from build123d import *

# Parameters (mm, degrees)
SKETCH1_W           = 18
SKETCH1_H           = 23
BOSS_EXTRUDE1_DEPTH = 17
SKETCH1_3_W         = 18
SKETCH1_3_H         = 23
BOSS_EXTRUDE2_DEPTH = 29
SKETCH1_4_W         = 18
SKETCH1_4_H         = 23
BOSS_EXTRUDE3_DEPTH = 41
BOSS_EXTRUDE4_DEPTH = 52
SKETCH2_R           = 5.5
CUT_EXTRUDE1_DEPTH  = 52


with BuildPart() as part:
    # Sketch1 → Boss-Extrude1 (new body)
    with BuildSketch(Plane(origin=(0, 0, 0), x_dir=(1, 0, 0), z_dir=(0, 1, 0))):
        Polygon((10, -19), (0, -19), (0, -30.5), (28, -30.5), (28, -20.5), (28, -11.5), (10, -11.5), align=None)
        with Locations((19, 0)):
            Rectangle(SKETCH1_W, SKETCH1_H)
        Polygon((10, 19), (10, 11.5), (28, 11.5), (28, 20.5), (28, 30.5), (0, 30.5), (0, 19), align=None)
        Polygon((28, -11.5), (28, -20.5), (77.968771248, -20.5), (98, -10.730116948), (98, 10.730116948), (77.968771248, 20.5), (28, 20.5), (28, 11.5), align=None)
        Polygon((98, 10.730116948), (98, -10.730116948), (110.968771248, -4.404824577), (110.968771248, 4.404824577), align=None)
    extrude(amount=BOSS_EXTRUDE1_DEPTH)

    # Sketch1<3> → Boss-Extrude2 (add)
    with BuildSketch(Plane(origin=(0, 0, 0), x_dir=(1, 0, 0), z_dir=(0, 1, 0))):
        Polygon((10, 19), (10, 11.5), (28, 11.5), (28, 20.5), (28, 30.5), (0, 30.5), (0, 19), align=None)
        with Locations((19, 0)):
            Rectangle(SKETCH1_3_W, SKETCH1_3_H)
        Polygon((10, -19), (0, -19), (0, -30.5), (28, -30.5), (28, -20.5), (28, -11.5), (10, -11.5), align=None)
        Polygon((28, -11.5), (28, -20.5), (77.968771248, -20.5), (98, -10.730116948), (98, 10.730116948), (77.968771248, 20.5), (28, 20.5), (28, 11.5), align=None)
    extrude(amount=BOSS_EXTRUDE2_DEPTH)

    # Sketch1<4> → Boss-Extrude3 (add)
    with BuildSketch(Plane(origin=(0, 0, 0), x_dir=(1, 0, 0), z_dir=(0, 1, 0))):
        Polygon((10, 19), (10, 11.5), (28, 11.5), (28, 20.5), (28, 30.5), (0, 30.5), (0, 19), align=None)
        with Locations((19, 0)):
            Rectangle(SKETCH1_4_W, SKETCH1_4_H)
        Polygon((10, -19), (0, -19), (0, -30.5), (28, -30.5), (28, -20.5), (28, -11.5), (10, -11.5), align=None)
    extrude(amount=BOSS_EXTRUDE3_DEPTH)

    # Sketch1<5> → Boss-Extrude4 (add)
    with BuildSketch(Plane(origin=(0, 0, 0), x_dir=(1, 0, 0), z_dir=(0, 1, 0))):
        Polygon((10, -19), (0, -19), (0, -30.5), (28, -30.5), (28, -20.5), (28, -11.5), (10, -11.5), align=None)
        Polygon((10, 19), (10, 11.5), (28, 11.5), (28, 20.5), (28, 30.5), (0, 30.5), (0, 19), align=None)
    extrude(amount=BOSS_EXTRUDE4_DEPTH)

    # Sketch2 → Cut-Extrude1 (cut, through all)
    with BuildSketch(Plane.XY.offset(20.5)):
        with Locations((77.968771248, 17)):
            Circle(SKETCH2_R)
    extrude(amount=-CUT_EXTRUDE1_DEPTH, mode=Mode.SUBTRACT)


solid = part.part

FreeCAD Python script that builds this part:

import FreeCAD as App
import Part
import Sketcher
from FreeCAD import Vector
Q = App.Units.Quantity

doc = App.newDocument("Part")
params = doc.addObject("Spreadsheet::Sheet", "Params")
for row, (alias, value) in enumerate([
    ("sketch1_width", "10 mm"),
    ("sketch1_width2", "28 mm"),
    ("sketch1_height", "38 mm"),
    ("sketch1_height2", "11.5 mm"),
    ("pad1_length", "17 mm"),
    ("sketch2_width", "10 mm"),
    ("sketch2_width2", "28 mm"),
    ("sketch2_height", "38 mm"),
    ("sketch2_height2", "11.5 mm"),
    ("pad2_length", "29 mm"),
    ("sketch3_width", "10 mm"),
    ("sketch3_width2", "28 mm"),
    ("sketch3_height", "38 mm"),
    ("sketch3_height2", "61 mm"),
    ("pad3_length", "41 mm"),
    ("sketch4_width", "10 mm"),
    ("sketch4_width2", "28 mm"),
    ("sketch4_height", "19 mm"),
    ("sketch4_height2", "11.5 mm"),
    ("pad4_length", "52 mm"),
    ("sketch5_diameter", "11 mm"),
], start=1):
    params.set(f"A{row}", alias)
    params.set(f"B{row}", "=" + value)
    params.setAlias(f"B{row}", alias)

body = doc.addObject("PartDesign::Body", "Body")

# Sketch on XZ plane
sketch1 = body.newObject("Sketcher::SketchObject", "Sketch")
sketch1.AttachmentSupport = (doc.getObject("XZ_Plane"), [""])
sketch1.MapMode = "FlatFace"
sketch1.addGeometry(Part.LineSegment(Vector(10, 19, 0), Vector(0, 19, 0)), False)
sketch1.addGeometry(Part.LineSegment(Vector(0, 19, 0), Vector(0, 30, 0)), False)
sketch1.addGeometry(Part.LineSegment(Vector(0, 30, 0), Vector(28, 30, 0)), False)
sketch1.addGeometry(Part.LineSegment(Vector(28, 30, 0), Vector(28, 20, 0)), False)
sketch1.addGeometry(Part.LineSegment(Vector(28, 20, 0), Vector(78, 20, 0)), False)
sketch1.addGeometry(Part.LineSegment(Vector(78, 20, 0), Vector(98, 11, 0)), False)
sketch1.addGeometry(Part.LineSegment(Vector(98, 11, 0), Vector(111, 4, 0)), False)
sketch1.addGeometry(Part.LineSegment(Vector(111, 4, 0), Vector(111, -4, 0)), False)
sketch1.addGeometry(Part.LineSegment(Vector(111, -4, 0), Vector(98, -11, 0)), False)
sketch1.addGeometry(Part.LineSegment(Vector(98, -11, 0), Vector(78, -20, 0)), False)
sketch1.addGeometry(Part.LineSegment(Vector(78, -20, 0), Vector(28, -20, 0)), False)
sketch1.addGeometry(Part.LineSegment(Vector(28, -20, 0), Vector(28, -30, 0)), False)
sketch1.addGeometry(Part.LineSegment(Vector(28, -30, 0), Vector(0, -30, 0)), False)
sketch1.addGeometry(Part.LineSegment(Vector(0, -30, 0), Vector(0, -19, 0)), False)
sketch1.addGeometry(Part.LineSegment(Vector(0, -19, 0), Vector(10, -19, 0)), False)
sketch1.addGeometry(Part.LineSegment(Vector(10, -19, 0), Vector(10, 19, 0)), False)
sketch1.addConstraint(Sketcher.Constraint("Coincident", 0, 2, 1, 1))
sketch1.addConstraint(Sketcher.Constraint("Coincident", 1, 2, 2, 1))
sketch1.addConstraint(Sketcher.Constraint("Coincident", 2, 2, 3, 1))
sketch1.addConstraint(Sketcher.Constraint("Coincident", 3, 2, 4, 1))
sketch1.addConstraint(Sketcher.Constraint("Coincident", 4, 2, 5, 1))
sketch1.addConstraint(Sketcher.Constraint("Coincident", 5, 2, 6, 1))
sketch1.addConstraint(Sketcher.Constraint("Coincident", 6, 2, 7, 1))
sketch1.addConstraint(Sketcher.Constraint("Coincident", 7, 2, 8, 1))
sketch1.addConstraint(Sketcher.Constraint("Coincident", 8, 2, 9, 1))
sketch1.addConstraint(Sketcher.Constraint("Coincident", 9, 2, 10, 1))
sketch1.addConstraint(Sketcher.Constraint("Coincident", 10, 2, 11, 1))
sketch1.addConstraint(Sketcher.Constraint("Coincident", 11, 2, 12, 1))
sketch1.addConstraint(Sketcher.Constraint("Coincident", 12, 2, 13, 1))
sketch1.addConstraint(Sketcher.Constraint("Coincident", 13, 2, 14, 1))
sketch1.addConstraint(Sketcher.Constraint("Coincident", 14, 2, 15, 1))
sketch1.addConstraint(Sketcher.Constraint("Coincident", 15, 2, 0, 1))
sketch1.addConstraint(Sketcher.Constraint("Horizontal", 0))
sketch1.addConstraint(Sketcher.Constraint("Vertical", 1))
sketch1.addConstraint(Sketcher.Constraint("Horizontal", 2))
sketch1.addConstraint(Sketcher.Constraint("Vertical", 3))
sketch1.addConstraint(Sketcher.Constraint("Horizontal", 4))
sketch1.addConstraint(Sketcher.Constraint("Vertical", 7))
sketch1.addConstraint(Sketcher.Constraint("Horizontal", 10))
sketch1.addConstraint(Sketcher.Constraint("Vertical", 11))
sketch1.addConstraint(Sketcher.Constraint("Horizontal", 12))
sketch1.addConstraint(Sketcher.Constraint("Vertical", 13))
sketch1.addConstraint(Sketcher.Constraint("Horizontal", 14))
sketch1.addConstraint(Sketcher.Constraint("Vertical", 15))
sketch1.addConstraint(Sketcher.Constraint("Symmetric", 1, 2, 12, 2, -1, 1))
sketch1.addConstraint(Sketcher.Constraint("Symmetric", 5, 2, 8, 2, -1))
sketch1.addConstraint(Sketcher.Constraint("Symmetric", 4, 2, 9, 2, -1))
sketch1.addConstraint(Sketcher.Constraint("Symmetric", 0, 2, 13, 2, -1))
sketch1.addConstraint(Sketcher.Constraint("Parallel", 5, 6))
sketch1.addConstraint(Sketcher.Constraint("Parallel", 8, 9))
sketch1.addConstraint(Sketcher.Constraint("Vertical", 3, 2, 10, 2))
sketch1.addConstraint(Sketcher.Constraint("Equal", 14, 3))
sketch1.addConstraint(Sketcher.Constraint("DistanceX", 0, 2, 0, 1, Q("10 mm")))
sketch1.addConstraint(Sketcher.Constraint("DistanceX", 2, 1, 2, 2, Q("28 mm")))
sketch1.addConstraint(Sketcher.Constraint("DistanceY", 15, 1, 15, 2, Q("38 mm")))
sketch1.addConstraint(Sketcher.Constraint("Angle", 5, Q("-26 deg")))
sketch1.addConstraint(Sketcher.Constraint("DistanceY", 1, 1, 1, 2, Q("11.5 mm")))
sketch1.addConstraint(Sketcher.Constraint("DistanceX", -1, 1, 5, 2, Q("98 mm")))
sketch1.addConstraint(Sketcher.Constraint("DistanceX", 4, 2, 6, 2, Q("33 mm")))
sketch1.addConstraint(Sketcher.Constraint("DistanceX", 4, 1, 4, 2, Q("49.968771 mm")))
sketch1.setExpression("Constraints[36]", "Params.sketch1_width")
sketch1.setExpression("Constraints[37]", "Params.sketch1_width2")
sketch1.setExpression("Constraints[38]", "Params.sketch1_height")
sketch1.setExpression("Constraints[40]", "Params.sketch1_height2")
pad1 = body.newObject("PartDesign::Pad", "Pad")
pad1.Profile = sketch1
pad1.setExpression("Length", "Params.pad1_length")
pad1.Reversed = True

# Sketch on XZ plane
sketch2 = body.newObject("Sketcher::SketchObject", "Sketch001")
sketch2.AttachmentSupport = (doc.getObject("XZ_Plane"), [""])
sketch2.MapMode = "FlatFace"
sketch2.addGeometry(Part.LineSegment(Vector(10, -19, 0), Vector(10, 19, 0)), False)
sketch2.addGeometry(Part.LineSegment(Vector(10, 19, 0), Vector(0, 19, 0)), False)
sketch2.addGeometry(Part.LineSegment(Vector(0, 19, 0), Vector(0, 30, 0)), False)
sketch2.addGeometry(Part.LineSegment(Vector(0, 30, 0), Vector(28, 30, 0)), False)
sketch2.addGeometry(Part.LineSegment(Vector(28, 30, 0), Vector(28, 20, 0)), False)
sketch2.addGeometry(Part.LineSegment(Vector(28, 20, 0), Vector(78, 20, 0)), False)
sketch2.addGeometry(Part.LineSegment(Vector(78, 20, 0), Vector(98, 11, 0)), False)
sketch2.addGeometry(Part.LineSegment(Vector(98, 11, 0), Vector(98, -11, 0)), False)
sketch2.addGeometry(Part.LineSegment(Vector(98, -11, 0), Vector(78, -20, 0)), False)
sketch2.addGeometry(Part.LineSegment(Vector(78, -20, 0), Vector(28, -20, 0)), False)
sketch2.addGeometry(Part.LineSegment(Vector(28, -20, 0), Vector(28, -30, 0)), False)
sketch2.addGeometry(Part.LineSegment(Vector(28, -30, 0), Vector(0, -30, 0)), False)
sketch2.addGeometry(Part.LineSegment(Vector(0, -30, 0), Vector(0, -19, 0)), False)
sketch2.addGeometry(Part.LineSegment(Vector(0, -19, 0), Vector(10, -19, 0)), False)
sketch2.addConstraint(Sketcher.Constraint("Coincident", 0, 2, 1, 1))
sketch2.addConstraint(Sketcher.Constraint("Coincident", 1, 2, 2, 1))
sketch2.addConstraint(Sketcher.Constraint("Coincident", 2, 2, 3, 1))
sketch2.addConstraint(Sketcher.Constraint("Coincident", 3, 2, 4, 1))
sketch2.addConstraint(Sketcher.Constraint("Coincident", 4, 2, 5, 1))
sketch2.addConstraint(Sketcher.Constraint("Coincident", 5, 2, 6, 1))
sketch2.addConstraint(Sketcher.Constraint("Coincident", 6, 2, 7, 1))
sketch2.addConstraint(Sketcher.Constraint("Coincident", 7, 2, 8, 1))
sketch2.addConstraint(Sketcher.Constraint("Coincident", 8, 2, 9, 1))
sketch2.addConstraint(Sketcher.Constraint("Coincident", 9, 2, 10, 1))
sketch2.addConstraint(Sketcher.Constraint("Coincident", 10, 2, 11, 1))
sketch2.addConstraint(Sketcher.Constraint("Coincident", 11, 2, 12, 1))
sketch2.addConstraint(Sketcher.Constraint("Coincident", 12, 2, 13, 1))
sketch2.addConstraint(Sketcher.Constraint("Coincident", 13, 2, 0, 1))
sketch2.addConstraint(Sketcher.Constraint("Vertical", 0))
sketch2.addConstraint(Sketcher.Constraint("Horizontal", 1))
sketch2.addConstraint(Sketcher.Constraint("Vertical", 2))
sketch2.addConstraint(Sketcher.Constraint("Horizontal", 3))
sketch2.addConstraint(Sketcher.Constraint("Vertical", 4))
sketch2.addConstraint(Sketcher.Constraint("Horizontal", 5))
sketch2.addConstraint(Sketcher.Constraint("Vertical", 7))
sketch2.addConstraint(Sketcher.Constraint("Horizontal", 9))
sketch2.addConstraint(Sketcher.Constraint("Vertical", 10))
sketch2.addConstraint(Sketcher.Constraint("Horizontal", 11))
sketch2.addConstraint(Sketcher.Constraint("Vertical", 12))
sketch2.addConstraint(Sketcher.Constraint("Horizontal", 13))
sketch2.addConstraint(Sketcher.Constraint("Symmetric", 2, 2, 11, 2, -1, 1))
sketch2.addConstraint(Sketcher.Constraint("Symmetric", 5, 2, 8, 2, -1))
sketch2.addConstraint(Sketcher.Constraint("Symmetric", 1, 2, 12, 2, -1))
sketch2.addConstraint(Sketcher.Constraint("Vertical", 4, 2, 9, 2))
sketch2.addConstraint(Sketcher.Constraint("Equal", 13, 4))
sketch2.addConstraint(Sketcher.Constraint("Equal", 6, 8))
sketch2.addConstraint(Sketcher.Constraint("DistanceX", 1, 2, 1, 1, Q("10 mm")))
sketch2.addConstraint(Sketcher.Constraint("DistanceX", 3, 1, 3, 2, Q("28 mm")))
sketch2.addConstraint(Sketcher.Constraint("DistanceY", 0, 1, 0, 2, Q("38 mm")))
sketch2.addConstraint(Sketcher.Constraint("Angle", 6, Q("-26 deg")))
sketch2.addConstraint(Sketcher.Constraint("DistanceY", 2, 1, 2, 2, Q("11.5 mm")))
sketch2.addConstraint(Sketcher.Constraint("DistanceX", -1, 1, 6, 2, Q("98 mm")))
sketch2.addConstraint(Sketcher.Constraint("DistanceX", 5, 1, 5, 2, Q("49.968771 mm")))
sketch2.setExpression("Constraints[32]", "Params.sketch2_width")
sketch2.setExpression("Constraints[33]", "Params.sketch2_width2")
sketch2.setExpression("Constraints[34]", "Params.sketch2_height")
sketch2.setExpression("Constraints[36]", "Params.sketch2_height2")
pad2 = body.newObject("PartDesign::Pad", "Pad001")
pad2.Profile = sketch2
pad2.setExpression("Length", "Params.pad2_length")
pad2.Reversed = True

# Sketch on XZ plane
sketch3 = body.newObject("Sketcher::SketchObject", "Sketch002")
sketch3.AttachmentSupport = (doc.getObject("XZ_Plane"), [""])
sketch3.MapMode = "FlatFace"
sketch3.addGeometry(Part.LineSegment(Vector(10, -19, 0), Vector(10, 19, 0)), False)
sketch3.addGeometry(Part.LineSegment(Vector(10, 19, 0), Vector(0, 19, 0)), False)
sketch3.addGeometry(Part.LineSegment(Vector(0, 19, 0), Vector(0, 30, 0)), False)
sketch3.addGeometry(Part.LineSegment(Vector(0, 30, 0), Vector(28, 30, 0)), False)
sketch3.addGeometry(Part.LineSegment(Vector(28, 30, 0), Vector(28, -30, 0)), False)
sketch3.addGeometry(Part.LineSegment(Vector(28, -30, 0), Vector(0, -30, 0)), False)
sketch3.addGeometry(Part.LineSegment(Vector(0, -30, 0), Vector(0, -19, 0)), False)
sketch3.addGeometry(Part.LineSegment(Vector(0, -19, 0), Vector(10, -19, 0)), False)
sketch3.addConstraint(Sketcher.Constraint("Coincident", 0, 2, 1, 1))
sketch3.addConstraint(Sketcher.Constraint("Coincident", 1, 2, 2, 1))
sketch3.addConstraint(Sketcher.Constraint("Coincident", 2, 2, 3, 1))
sketch3.addConstraint(Sketcher.Constraint("Coincident", 3, 2, 4, 1))
sketch3.addConstraint(Sketcher.Constraint("Coincident", 4, 2, 5, 1))
sketch3.addConstraint(Sketcher.Constraint("Coincident", 5, 2, 6, 1))
sketch3.addConstraint(Sketcher.Constraint("Coincident", 6, 2, 7, 1))
sketch3.addConstraint(Sketcher.Constraint("Coincident", 7, 2, 0, 1))
sketch3.addConstraint(Sketcher.Constraint("Vertical", 0))
sketch3.addConstraint(Sketcher.Constraint("Horizontal", 1))
sketch3.addConstraint(Sketcher.Constraint("Vertical", 2))
sketch3.addConstraint(Sketcher.Constraint("Horizontal", 3))
sketch3.addConstraint(Sketcher.Constraint("Vertical", 4))
sketch3.addConstraint(Sketcher.Constraint("Horizontal", 5))
sketch3.addConstraint(Sketcher.Constraint("Vertical", 6))
sketch3.addConstraint(Sketcher.Constraint("Horizontal", 7))
sketch3.addConstraint(Sketcher.Constraint("Symmetric", 2, 2, 5, 2, -1, 1))
sketch3.addConstraint(Sketcher.Constraint("Symmetric", 1, 2, 6, 2, -1))
sketch3.addConstraint(Sketcher.Constraint("DistanceX", 1, 2, 1, 1, Q("10 mm")))
sketch3.addConstraint(Sketcher.Constraint("DistanceX", 3, 1, 3, 2, Q("28 mm")))
sketch3.addConstraint(Sketcher.Constraint("DistanceY", 0, 1, 0, 2, Q("38 mm")))
sketch3.addConstraint(Sketcher.Constraint("DistanceY", 4, 2, 4, 1, Q("61 mm")))
sketch3.setExpression("Constraints[18]", "Params.sketch3_width")
sketch3.setExpression("Constraints[19]", "Params.sketch3_width2")
sketch3.setExpression("Constraints[20]", "Params.sketch3_height")
sketch3.setExpression("Constraints[21]", "Params.sketch3_height2")
pad3 = body.newObject("PartDesign::Pad", "Pad002")
pad3.Profile = sketch3
pad3.setExpression("Length", "Params.pad3_length")
pad3.Reversed = True

# Sketch on XZ plane
sketch4 = body.newObject("Sketcher::SketchObject", "Sketch003")
sketch4.AttachmentSupport = (doc.getObject("XZ_Plane"), [""])
sketch4.MapMode = "FlatFace"
sketch4.addGeometry(Part.LineSegment(Vector(10, 19, 0), Vector(0, 19, 0)), False)
sketch4.addGeometry(Part.LineSegment(Vector(0, 19, 0), Vector(0, 30, 0)), False)
sketch4.addGeometry(Part.LineSegment(Vector(0, 30, 0), Vector(28, 30, 0)), False)
sketch4.addGeometry(Part.LineSegment(Vector(28, 30, 0), Vector(28, 12, 0)), False)
sketch4.addGeometry(Part.LineSegment(Vector(28, 12, 0), Vector(10, 12, 0)), False)
sketch4.addGeometry(Part.LineSegment(Vector(10, 12, 0), Vector(10, 19, 0)), False)
sketch4.addGeometry(Part.LineSegment(Vector(10, -19, 0), Vector(10, -12, 0)), False)
sketch4.addGeometry(Part.LineSegment(Vector(10, -12, 0), Vector(28, -12, 0)), False)
sketch4.addGeometry(Part.LineSegment(Vector(28, -12, 0), Vector(28, -30, 0)), False)
sketch4.addGeometry(Part.LineSegment(Vector(28, -30, 0), Vector(0, -30, 0)), False)
sketch4.addGeometry(Part.LineSegment(Vector(0, -30, 0), Vector(0, -19, 0)), False)
sketch4.addGeometry(Part.LineSegment(Vector(0, -19, 0), Vector(10, -19, 0)), False)
sketch4.addConstraint(Sketcher.Constraint("Coincident", 0, 2, 1, 1))
sketch4.addConstraint(Sketcher.Constraint("Coincident", 1, 2, 2, 1))
sketch4.addConstraint(Sketcher.Constraint("Coincident", 2, 2, 3, 1))
sketch4.addConstraint(Sketcher.Constraint("Coincident", 3, 2, 4, 1))
sketch4.addConstraint(Sketcher.Constraint("Coincident", 4, 2, 5, 1))
sketch4.addConstraint(Sketcher.Constraint("Coincident", 5, 2, 0, 1))
sketch4.addConstraint(Sketcher.Constraint("Coincident", 6, 2, 7, 1))
sketch4.addConstraint(Sketcher.Constraint("Coincident", 7, 2, 8, 1))
sketch4.addConstraint(Sketcher.Constraint("Coincident", 8, 2, 9, 1))
sketch4.addConstraint(Sketcher.Constraint("Coincident", 9, 2, 10, 1))
sketch4.addConstraint(Sketcher.Constraint("Coincident", 10, 2, 11, 1))
sketch4.addConstraint(Sketcher.Constraint("Coincident", 11, 2, 6, 1))
sketch4.addConstraint(Sketcher.Constraint("Horizontal", 0))
sketch4.addConstraint(Sketcher.Constraint("Vertical", 1))
sketch4.addConstraint(Sketcher.Constraint("Horizontal", 2))
sketch4.addConstraint(Sketcher.Constraint("Vertical", 3))
sketch4.addConstraint(Sketcher.Constraint("Horizontal", 4))
sketch4.addConstraint(Sketcher.Constraint("Vertical", 5))
sketch4.addConstraint(Sketcher.Constraint("Vertical", 6))
sketch4.addConstraint(Sketcher.Constraint("Horizontal", 7))
sketch4.addConstraint(Sketcher.Constraint("Vertical", 8))
sketch4.addConstraint(Sketcher.Constraint("Horizontal", 9))
sketch4.addConstraint(Sketcher.Constraint("Vertical", 10))
sketch4.addConstraint(Sketcher.Constraint("Horizontal", 11))
sketch4.addConstraint(Sketcher.Constraint("Symmetric", 1, 2, 9, 2, -1, 1))
sketch4.addConstraint(Sketcher.Constraint("Symmetric", 4, 2, 6, 2, -1))
sketch4.addConstraint(Sketcher.Constraint("Symmetric", 0, 2, 10, 2, -1))
sketch4.addConstraint(Sketcher.Constraint("Vertical", 3, 2, 7, 2))
sketch4.addConstraint(Sketcher.Constraint("DistanceX", 0, 2, 0, 1, Q("10 mm")))
sketch4.addConstraint(Sketcher.Constraint("DistanceX", 2, 1, 2, 2, Q("28 mm")))
sketch4.addConstraint(Sketcher.Constraint("DistanceY", 3, 2, 3, 1, Q("19 mm")))
sketch4.addConstraint(Sketcher.Constraint("DistanceY", 1, 1, 1, 2, Q("11.5 mm")))
sketch4.addConstraint(Sketcher.Constraint("DistanceY", -1, 1, 0, 2, Q("19 mm")))
sketch4.setExpression("Constraints[28]", "Params.sketch4_width")
sketch4.setExpression("Constraints[29]", "Params.sketch4_width2")
sketch4.setExpression("Constraints[30]", "Params.sketch4_height")
sketch4.setExpression("Constraints[31]", "Params.sketch4_height2")
pad4 = body.newObject("PartDesign::Pad", "Pad003")
pad4.Profile = sketch4
pad4.setExpression("Length", "Params.pad4_length")
pad4.Reversed = True

# Sketch on XY plane
sketch5 = body.newObject("Sketcher::SketchObject", "Sketch004")
sketch5.AttachmentSupport = (doc.getObject("XY_Plane"), [""])
sketch5.MapMode = "FlatFace"
sketch5.AttachmentOffset = App.Placement(Vector(0, 0, 20.5), App.Rotation())
sketch5.addGeometry(Part.Circle(Vector(78, 17, 0), Vector(0, 0, 1), 6), False)
sketch5.addConstraint(Sketcher.Constraint("Diameter", 0, Q("11 mm")))
sketch5.addConstraint(Sketcher.Constraint("DistanceY", -1, 1, 0, 3, Q("17 mm")))
sketch5.addConstraint(Sketcher.Constraint("DistanceX", -1, 1, 0, 3, Q("77.968771 mm")))
sketch5.setExpression("Constraints[0]", "Params.sketch5_diameter")
pocket1 = body.newObject("PartDesign::Pocket", "Pocket")
pocket1.Profile = sketch5
pocket1.Type = "ThroughAll"

doc.recompute()
